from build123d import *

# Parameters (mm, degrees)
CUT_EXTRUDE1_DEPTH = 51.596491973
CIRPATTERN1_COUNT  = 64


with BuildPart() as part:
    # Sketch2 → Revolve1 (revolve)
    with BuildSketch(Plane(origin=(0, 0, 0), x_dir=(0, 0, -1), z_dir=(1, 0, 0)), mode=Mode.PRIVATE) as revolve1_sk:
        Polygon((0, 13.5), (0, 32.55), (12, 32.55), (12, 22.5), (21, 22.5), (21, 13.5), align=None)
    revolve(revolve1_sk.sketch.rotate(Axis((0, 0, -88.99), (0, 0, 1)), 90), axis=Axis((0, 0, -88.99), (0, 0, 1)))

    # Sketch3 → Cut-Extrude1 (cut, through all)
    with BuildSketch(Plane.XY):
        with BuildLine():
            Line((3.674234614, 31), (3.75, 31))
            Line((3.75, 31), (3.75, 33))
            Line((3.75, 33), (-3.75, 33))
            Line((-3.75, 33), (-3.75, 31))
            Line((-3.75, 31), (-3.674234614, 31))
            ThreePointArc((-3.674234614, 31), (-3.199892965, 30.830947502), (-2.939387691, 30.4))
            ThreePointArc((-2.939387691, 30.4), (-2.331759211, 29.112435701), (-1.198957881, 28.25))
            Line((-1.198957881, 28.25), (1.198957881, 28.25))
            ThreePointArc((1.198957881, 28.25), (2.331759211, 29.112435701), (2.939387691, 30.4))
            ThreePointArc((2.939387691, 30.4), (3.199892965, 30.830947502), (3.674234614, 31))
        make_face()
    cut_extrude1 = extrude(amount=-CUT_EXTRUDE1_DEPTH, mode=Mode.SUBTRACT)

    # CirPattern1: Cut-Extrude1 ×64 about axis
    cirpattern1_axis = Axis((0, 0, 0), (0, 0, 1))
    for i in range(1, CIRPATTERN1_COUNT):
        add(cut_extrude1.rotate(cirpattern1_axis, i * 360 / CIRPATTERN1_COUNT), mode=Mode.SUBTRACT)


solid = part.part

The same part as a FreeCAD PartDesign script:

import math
import FreeCAD as App
import Part
import Sketcher

V = App.Vector
Q = App.Units.Quantity


def add_polygon(sketch, points):
    """Adds a closed chain of lines whose ends are joined by coincident constraints."""
    first, n = sketch.GeometryCount, len(points)
    for a, b in zip(points, points[1:] + points[:1]):
        sketch.addGeometry(Part.LineSegment(App.Vector(*a, 0), App.Vector(*b, 0)), False)
    for i in range(n):
        sketch.addConstraint(Sketcher.Constraint("Coincident", first + i, 2, first + (i + 1) % n, 1))

doc = App.newDocument("Part")
body = doc.addObject("PartDesign::Body", "Body")

sketch1 = doc.addObject("Sketcher::SketchObject", "Sketch")
body.addObject(sketch1)
sketch1.AttachmentSupport = (doc.YZ_Plane, [""])
sketch1.MapMode = "FlatFace"
add_polygon(sketch1, [(33, 0), (14, 0), (14, -21), (22, -21), (22, -12), (33, -12)])
sketch1.addConstraint([
    Sketcher.Constraint("Horizontal", 0),
    Sketcher.Constraint("Vertical", 1),
    Sketcher.Constraint("Horizontal", 2),
    Sketcher.Constraint("Vertical", 3),
    Sketcher.Constraint("Horizontal", 4),
    Sketcher.Constraint("Vertical", 5),
    Sketcher.Constraint("PointOnObject", 0, 2, -1),
    Sketcher.Constraint("Equal", 2, 3),
    Sketcher.Constraint("DistanceX", 2, 1, 2, 2, Q("9 mm")),
    Sketcher.Constraint("DistanceY", 1, 2, 1, 1, Q("21 mm")),
    Sketcher.Constraint("DistanceX", 0, 2, 0, 1, Q("19.05 mm")),
    Sketcher.Constraint("DistanceX", -1, 1, 0, 2, Q("13.5 mm")),
])
revolution = doc.addObject("PartDesign::Revolution", "Revolution")
body.addObject(revolution)
revolution.Profile = sketch1
revolution.ReferenceAxis = (sketch1, ["V_Axis"])
revolution.Angle = 360

sketch2 = doc.addObject("Sketcher::SketchObject", "Sketch001")
body.addObject(sketch2)
sketch2.AttachmentSupport = (doc.XY_Plane, [""])
sketch2.MapMode = "FlatFace"
sketch2.addGeometry([
    Part.LineSegment(V(3.67, 31, 0), V(3.75, 31, 0)),
    Part.LineSegment(V(3.75, 31, 0), V(3.75, 33, 0)),
    Part.LineSegment(V(3.75, 33, 0), V(-3.75, 33, 0)),
    Part.LineSegment(V(-3.75, 33, 0), V(-3.75, 31, 0)),
    Part.LineSegment(V(-3.75, 31, 0), V(-3.67, 31, 0)),
    Part.ArcOfCircle(Part.Circle(V(-3.67, 30.25, 0), V(0, 0, 1), 0.75), math.radians(12), math.radians(90)),
    Part.ArcOfCircle(Part.Circle(V(0, 31, 0), V(0, 0, 1), 3), math.radians(-168), math.radians(-114)),
    Part.LineSegment(V(-1.2, 28.25, 0), V(1.2, 28.25, 0)),
    Part.ArcOfCircle(Part.Circle(V(0, 31, 0), V(0, 0, 1), 3), math.radians(-66), math.radians(-12)),
    Part.ArcOfCircle(Part.Circle(V(3.67, 30.25, 0), V(0, 0, 1), 0.75), math.radians(90), math.radians(168)),
], False)
sketch2.addConstraint([
    Sketcher.Constraint("Coincident", 0, 2, 1, 1),
    Sketcher.Constraint("Coincident", 1, 2, 2, 1),
    Sketcher.Constraint("Coincident", 2, 2, 3, 1),
    Sketcher.Constraint("Coincident", 3, 2, 4, 1),
    Sketcher.Constraint("Tangent", 4, 2, 5, 2),
    Sketcher.Constraint("Tangent", 5, 1, 6, 1),
    Sketcher.Constraint("Coincident", 6, 2, 7, 1),
    Sketcher.Constraint("Coincident", 7, 2, 8, 1),
    Sketcher.Constraint("Tangent", 8, 2, 9, 2),
    Sketcher.Constraint("Tangent", 9, 1, 0, 1),
    Sketcher.Constraint("Horizontal", 0),
    Sketcher.Constraint("Vertical", 1),
    Sketcher.Constraint("Horizontal", 2),
    Sketcher.Constraint("Vertical", 3),
    Sketcher.Constraint("Horizontal", 4),
    Sketcher.Constraint("Horizontal", 7),
    Sketcher.Constraint("Coincident", 8, 3, 6, 3),
    Sketcher.Constraint("Equal", 6, 8),
    Sketcher.Constraint("Equal", 5, 9),
    Sketcher.Constraint("Symmetric", 5, 3, 9, 3, -2),
    Sketcher.Constraint("Horizontal", 8, 3, 0, 2),
    Sketcher.Constraint("Equal", 0, 4),
    Sketcher.Constraint("Radius", 6, Q("3 mm")),
    Sketcher.Constraint("DistanceY", 1, 1, 1, 2, Q("2 mm")),
    Sketcher.Constraint("Radius", 5, Q("0.75 mm")),
    Sketcher.Constraint("DistanceX", 2, 2, 2, 1, Q("7.5 mm")),
    Sketcher.Constraint("DistanceY", -1, 1, 6, 3, Q("31 mm")),
    Sketcher.Constraint("DistanceY", 6, 2, 5, 3, Q("2 mm")),
])
pocket1 = doc.addObject("PartDesign::Pocket", "Pocket")
body.addObject(pocket1)
pocket1.Profile = sketch2
pocket1.Type = "ThroughAll"
doc.recompute()

polarpattern = doc.addObject("PartDesign::PolarPattern", "PolarPattern")
body.addObject(polarpattern)
polarpattern.Originals = [pocket1]
polarpattern.Axis = (doc.Z_Axis, [""])
polarpattern.Angle = 360
polarpattern.Occurrences = 64
body.Tip = polarpattern

doc.recompute()
